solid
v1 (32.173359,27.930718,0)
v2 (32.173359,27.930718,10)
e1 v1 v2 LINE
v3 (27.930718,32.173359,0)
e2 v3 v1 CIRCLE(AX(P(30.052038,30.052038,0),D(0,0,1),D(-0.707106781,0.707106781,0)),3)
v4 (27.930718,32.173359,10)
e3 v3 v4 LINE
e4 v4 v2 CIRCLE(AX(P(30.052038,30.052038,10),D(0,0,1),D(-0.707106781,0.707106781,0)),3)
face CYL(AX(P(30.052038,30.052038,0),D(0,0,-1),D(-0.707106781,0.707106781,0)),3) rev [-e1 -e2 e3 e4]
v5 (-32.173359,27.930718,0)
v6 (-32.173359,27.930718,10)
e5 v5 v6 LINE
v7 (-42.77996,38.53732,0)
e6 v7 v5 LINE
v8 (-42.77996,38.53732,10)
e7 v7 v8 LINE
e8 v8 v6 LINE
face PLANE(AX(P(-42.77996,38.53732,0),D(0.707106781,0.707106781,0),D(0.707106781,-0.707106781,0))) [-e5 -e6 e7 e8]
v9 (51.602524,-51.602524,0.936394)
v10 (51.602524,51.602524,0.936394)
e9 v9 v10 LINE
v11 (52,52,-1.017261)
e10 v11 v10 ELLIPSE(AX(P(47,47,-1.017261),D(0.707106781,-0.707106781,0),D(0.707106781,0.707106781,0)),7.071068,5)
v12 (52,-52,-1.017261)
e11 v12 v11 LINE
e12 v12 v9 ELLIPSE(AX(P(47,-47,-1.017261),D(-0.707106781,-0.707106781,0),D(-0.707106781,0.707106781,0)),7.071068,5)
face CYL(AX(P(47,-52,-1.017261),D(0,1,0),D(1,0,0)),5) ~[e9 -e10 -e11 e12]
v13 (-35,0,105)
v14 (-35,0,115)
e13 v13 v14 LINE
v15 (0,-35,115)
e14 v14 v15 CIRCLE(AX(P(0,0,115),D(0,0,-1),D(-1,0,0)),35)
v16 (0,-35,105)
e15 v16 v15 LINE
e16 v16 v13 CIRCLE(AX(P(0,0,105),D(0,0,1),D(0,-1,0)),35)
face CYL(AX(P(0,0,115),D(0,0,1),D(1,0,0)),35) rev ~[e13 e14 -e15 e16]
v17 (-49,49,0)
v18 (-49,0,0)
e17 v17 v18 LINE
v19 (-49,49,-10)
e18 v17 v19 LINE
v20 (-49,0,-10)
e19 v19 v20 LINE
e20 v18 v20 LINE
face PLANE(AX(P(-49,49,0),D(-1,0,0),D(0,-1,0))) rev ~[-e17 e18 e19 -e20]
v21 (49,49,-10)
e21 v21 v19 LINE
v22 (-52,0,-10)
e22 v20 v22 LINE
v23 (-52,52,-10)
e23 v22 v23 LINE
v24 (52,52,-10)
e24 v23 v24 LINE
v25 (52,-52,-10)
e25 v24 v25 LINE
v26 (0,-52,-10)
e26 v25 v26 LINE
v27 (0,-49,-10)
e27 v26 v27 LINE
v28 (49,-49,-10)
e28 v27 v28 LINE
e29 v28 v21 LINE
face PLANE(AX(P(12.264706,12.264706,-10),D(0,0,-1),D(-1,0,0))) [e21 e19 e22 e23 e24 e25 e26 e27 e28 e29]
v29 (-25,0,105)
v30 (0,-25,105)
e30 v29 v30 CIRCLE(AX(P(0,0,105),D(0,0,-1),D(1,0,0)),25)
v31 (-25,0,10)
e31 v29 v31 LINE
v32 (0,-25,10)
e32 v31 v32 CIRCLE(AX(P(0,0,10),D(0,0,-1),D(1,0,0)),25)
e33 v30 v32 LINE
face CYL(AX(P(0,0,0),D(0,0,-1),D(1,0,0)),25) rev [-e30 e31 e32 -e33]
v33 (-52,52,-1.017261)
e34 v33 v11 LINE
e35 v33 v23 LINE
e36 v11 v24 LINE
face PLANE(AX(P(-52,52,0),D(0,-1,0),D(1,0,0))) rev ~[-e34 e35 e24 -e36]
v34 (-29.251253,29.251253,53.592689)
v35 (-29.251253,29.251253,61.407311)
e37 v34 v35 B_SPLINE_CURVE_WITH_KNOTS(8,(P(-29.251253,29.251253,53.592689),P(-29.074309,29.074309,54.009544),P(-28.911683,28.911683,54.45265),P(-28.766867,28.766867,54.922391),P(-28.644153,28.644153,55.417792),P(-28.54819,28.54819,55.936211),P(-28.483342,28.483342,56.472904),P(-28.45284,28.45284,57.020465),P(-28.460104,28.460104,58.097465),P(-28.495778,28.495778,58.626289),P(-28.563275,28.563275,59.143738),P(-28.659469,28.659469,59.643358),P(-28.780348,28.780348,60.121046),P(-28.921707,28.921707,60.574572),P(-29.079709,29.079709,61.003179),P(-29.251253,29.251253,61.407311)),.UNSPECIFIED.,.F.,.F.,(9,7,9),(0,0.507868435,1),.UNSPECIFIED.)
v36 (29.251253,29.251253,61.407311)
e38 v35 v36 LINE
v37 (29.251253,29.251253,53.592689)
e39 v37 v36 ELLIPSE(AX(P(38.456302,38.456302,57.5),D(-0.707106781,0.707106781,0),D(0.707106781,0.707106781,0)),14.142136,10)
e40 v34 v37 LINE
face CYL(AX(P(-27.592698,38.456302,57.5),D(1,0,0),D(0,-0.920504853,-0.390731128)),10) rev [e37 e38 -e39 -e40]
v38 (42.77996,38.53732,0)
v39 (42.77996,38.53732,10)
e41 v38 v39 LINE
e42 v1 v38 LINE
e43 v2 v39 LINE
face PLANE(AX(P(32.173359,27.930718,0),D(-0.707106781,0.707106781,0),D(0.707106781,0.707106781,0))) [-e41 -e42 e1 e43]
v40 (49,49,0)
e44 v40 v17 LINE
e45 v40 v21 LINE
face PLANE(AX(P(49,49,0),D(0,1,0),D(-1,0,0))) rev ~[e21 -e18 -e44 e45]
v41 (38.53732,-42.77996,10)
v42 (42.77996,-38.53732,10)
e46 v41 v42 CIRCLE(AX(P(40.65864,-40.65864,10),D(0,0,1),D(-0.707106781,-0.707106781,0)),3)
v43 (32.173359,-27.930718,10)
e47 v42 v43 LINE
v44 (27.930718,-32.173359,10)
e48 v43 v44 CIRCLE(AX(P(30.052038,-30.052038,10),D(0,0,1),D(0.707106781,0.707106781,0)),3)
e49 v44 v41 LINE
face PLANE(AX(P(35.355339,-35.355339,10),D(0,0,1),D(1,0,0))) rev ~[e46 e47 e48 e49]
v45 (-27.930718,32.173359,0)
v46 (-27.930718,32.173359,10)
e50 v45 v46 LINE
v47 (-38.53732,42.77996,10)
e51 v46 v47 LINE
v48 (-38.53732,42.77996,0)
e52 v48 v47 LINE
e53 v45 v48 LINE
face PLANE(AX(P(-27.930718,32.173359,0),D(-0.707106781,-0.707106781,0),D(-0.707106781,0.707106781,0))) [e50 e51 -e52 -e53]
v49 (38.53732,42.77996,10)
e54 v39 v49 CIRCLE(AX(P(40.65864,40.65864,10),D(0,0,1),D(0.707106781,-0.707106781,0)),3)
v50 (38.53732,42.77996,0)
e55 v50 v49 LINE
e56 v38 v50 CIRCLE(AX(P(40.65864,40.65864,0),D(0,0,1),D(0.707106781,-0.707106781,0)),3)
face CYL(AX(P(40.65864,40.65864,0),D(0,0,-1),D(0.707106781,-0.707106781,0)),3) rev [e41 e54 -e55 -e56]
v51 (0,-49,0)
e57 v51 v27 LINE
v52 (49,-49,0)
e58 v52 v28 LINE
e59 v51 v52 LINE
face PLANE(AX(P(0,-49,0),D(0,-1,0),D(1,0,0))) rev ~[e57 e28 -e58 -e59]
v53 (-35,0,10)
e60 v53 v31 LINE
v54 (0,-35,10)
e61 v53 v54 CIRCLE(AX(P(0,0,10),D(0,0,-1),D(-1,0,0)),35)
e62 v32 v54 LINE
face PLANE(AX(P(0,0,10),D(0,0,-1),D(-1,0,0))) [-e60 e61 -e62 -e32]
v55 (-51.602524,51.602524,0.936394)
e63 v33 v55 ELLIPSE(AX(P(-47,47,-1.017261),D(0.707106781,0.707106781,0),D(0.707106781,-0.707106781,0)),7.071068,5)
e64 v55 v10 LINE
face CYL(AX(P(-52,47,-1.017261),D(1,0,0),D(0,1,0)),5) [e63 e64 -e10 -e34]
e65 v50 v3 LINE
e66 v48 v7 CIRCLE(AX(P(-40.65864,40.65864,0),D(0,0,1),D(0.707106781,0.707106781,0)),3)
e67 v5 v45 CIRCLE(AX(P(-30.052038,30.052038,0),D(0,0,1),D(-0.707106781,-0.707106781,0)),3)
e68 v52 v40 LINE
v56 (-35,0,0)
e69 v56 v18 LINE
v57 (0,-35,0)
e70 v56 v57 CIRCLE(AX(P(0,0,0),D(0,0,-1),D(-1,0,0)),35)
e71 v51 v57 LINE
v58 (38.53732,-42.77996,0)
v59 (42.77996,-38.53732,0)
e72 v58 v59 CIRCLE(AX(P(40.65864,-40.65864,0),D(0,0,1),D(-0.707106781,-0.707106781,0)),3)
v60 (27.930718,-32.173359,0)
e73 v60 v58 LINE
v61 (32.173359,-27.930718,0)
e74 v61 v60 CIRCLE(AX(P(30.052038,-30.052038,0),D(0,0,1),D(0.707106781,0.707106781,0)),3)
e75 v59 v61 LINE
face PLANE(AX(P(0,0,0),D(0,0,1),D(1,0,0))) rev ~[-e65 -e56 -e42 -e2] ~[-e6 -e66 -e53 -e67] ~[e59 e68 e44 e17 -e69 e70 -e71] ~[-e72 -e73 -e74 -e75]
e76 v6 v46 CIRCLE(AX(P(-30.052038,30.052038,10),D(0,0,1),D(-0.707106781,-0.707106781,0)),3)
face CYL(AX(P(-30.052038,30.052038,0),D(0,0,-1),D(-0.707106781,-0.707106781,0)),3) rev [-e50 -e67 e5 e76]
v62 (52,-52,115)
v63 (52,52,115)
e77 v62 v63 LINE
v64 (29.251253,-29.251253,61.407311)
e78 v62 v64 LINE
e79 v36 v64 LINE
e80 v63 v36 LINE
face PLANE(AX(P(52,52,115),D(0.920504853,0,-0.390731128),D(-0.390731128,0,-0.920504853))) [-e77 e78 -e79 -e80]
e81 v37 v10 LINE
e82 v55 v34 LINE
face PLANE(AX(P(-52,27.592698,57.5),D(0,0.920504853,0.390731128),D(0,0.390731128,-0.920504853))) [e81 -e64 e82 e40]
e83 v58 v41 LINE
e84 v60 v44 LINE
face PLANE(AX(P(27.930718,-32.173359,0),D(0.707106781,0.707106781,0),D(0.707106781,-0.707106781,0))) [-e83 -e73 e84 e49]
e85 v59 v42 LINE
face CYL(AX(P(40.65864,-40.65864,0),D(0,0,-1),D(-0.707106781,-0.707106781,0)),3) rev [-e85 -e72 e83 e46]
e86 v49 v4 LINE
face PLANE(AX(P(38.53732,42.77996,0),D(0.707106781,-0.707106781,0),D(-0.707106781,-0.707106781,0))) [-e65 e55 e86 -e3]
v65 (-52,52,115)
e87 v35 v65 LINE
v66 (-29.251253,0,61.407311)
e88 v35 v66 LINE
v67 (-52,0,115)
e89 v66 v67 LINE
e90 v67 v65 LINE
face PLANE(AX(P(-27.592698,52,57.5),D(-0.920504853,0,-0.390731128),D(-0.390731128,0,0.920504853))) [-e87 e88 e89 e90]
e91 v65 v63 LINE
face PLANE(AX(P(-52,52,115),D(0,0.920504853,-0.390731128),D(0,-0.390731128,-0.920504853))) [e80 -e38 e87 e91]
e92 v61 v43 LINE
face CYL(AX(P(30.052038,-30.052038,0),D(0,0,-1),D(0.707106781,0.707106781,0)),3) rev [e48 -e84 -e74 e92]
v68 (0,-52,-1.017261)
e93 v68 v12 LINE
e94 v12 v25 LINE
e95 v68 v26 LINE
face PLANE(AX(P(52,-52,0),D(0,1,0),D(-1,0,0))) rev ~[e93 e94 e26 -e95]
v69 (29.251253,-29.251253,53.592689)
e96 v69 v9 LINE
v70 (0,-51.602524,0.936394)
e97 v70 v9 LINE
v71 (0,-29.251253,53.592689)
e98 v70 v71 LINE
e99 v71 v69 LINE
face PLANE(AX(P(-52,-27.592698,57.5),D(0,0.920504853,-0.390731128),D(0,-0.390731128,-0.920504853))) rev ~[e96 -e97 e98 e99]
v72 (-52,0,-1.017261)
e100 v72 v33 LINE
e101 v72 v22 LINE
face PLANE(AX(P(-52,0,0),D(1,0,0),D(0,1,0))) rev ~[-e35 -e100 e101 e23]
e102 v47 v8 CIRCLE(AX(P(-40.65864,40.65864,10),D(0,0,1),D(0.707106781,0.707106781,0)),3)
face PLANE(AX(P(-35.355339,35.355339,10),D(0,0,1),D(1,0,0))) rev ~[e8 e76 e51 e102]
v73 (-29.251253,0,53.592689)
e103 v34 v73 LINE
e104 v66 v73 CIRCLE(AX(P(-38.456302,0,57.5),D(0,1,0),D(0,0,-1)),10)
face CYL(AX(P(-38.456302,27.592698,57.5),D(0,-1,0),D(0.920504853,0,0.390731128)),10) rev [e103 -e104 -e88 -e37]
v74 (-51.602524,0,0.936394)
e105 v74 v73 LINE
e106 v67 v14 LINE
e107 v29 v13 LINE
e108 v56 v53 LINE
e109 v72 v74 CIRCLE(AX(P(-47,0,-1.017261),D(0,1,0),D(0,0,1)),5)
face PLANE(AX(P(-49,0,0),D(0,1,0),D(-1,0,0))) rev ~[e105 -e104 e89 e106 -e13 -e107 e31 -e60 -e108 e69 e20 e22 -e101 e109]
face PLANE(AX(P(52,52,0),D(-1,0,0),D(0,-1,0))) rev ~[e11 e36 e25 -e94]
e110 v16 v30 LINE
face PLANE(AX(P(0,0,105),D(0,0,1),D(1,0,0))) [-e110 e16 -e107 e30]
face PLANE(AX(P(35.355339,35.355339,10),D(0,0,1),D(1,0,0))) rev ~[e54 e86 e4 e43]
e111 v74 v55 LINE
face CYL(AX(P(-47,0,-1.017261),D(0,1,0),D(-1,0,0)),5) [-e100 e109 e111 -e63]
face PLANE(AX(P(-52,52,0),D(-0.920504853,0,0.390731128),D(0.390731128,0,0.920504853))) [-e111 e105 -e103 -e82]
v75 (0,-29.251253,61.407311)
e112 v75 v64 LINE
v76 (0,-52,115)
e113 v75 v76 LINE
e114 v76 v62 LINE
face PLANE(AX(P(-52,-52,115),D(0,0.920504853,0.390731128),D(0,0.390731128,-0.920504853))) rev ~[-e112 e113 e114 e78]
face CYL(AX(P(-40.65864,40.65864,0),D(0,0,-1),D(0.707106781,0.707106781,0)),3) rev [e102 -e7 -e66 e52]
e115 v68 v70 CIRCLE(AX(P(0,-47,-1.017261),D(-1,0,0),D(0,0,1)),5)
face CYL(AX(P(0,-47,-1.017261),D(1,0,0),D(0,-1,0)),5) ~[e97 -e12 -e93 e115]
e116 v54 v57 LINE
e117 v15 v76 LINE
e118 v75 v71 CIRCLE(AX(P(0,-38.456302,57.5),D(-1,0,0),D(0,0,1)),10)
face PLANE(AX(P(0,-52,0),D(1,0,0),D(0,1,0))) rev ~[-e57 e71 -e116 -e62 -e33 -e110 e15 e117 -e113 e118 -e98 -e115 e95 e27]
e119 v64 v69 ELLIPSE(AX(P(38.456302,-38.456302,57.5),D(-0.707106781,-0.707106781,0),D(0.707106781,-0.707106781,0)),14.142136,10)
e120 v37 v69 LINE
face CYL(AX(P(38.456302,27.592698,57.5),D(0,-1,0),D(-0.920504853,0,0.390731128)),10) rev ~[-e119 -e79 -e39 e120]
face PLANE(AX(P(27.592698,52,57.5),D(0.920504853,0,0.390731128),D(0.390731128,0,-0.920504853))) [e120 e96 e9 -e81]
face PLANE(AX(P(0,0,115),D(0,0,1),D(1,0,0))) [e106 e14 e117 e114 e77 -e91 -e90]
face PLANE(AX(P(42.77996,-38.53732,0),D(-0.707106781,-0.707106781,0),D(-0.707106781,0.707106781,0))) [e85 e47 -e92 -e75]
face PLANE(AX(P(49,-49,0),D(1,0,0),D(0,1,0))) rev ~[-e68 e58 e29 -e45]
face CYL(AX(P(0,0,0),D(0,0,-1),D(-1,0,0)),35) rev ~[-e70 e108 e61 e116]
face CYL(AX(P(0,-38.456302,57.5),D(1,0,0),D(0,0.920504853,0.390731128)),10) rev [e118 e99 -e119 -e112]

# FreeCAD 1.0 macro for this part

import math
import FreeCAD as App
import Part
import Sketcher
from FreeCAD import Vector
Q = App.Units.Quantity


def edges_at(feature, points):
    """Names of the edges that pass closest to the given points."""
    edges = feature.Shape.Edges
    near = lambda p: min(range(len(edges)), key=lambda i: edges[i].distToShape(Part.Vertex(*p))[0])
    return sorted({f"Edge{near(p) + 1}" for p in points})

doc = App.newDocument("Part")
body = doc.addObject("PartDesign::Body", "Body")

sketch1 = doc.addObject("Sketcher::SketchObject", "Sketch")
body.addObject(sketch1)
sketch1.AttachmentSupport = (doc.XY_Plane, [""])
sketch1.MapMode = "FlatFace"
sketch1.addGeometry([
    Part.LineSegment(Vector(-52, 52, 0), Vector(-52, -52, 0)),
    Part.LineSegment(Vector(-52, -52, 0), Vector(52, -52, 0)),
    Part.LineSegment(Vector(52, -52, 0), Vector(52, 52, 0)),
    Part.LineSegment(Vector(52, 52, 0), Vector(-52, 52, 0)),
    Part.Circle(Vector(0, 0, 0), Vector(0, 0, 1), 25),
], False)
sketch1.addConstraint([
    Sketcher.Constraint("Coincident", 0, 2, 1, 1),
    Sketcher.Constraint("Coincident", 1, 2, 2, 1),
    Sketcher.Constraint("Coincident", 2, 2, 3, 1),
    Sketcher.Constraint("Coincident", 3, 2, 0, 1),
    Sketcher.Constraint("Vertical", 0),
    Sketcher.Constraint("Horizontal", 1),
    Sketcher.Constraint("Vertical", 2),
    Sketcher.Constraint("Horizontal", 3),
    Sketcher.Constraint("Coincident", 4, 3, -1, 1),
    Sketcher.Constraint("Symmetric", 0, 2, 2, 2, -1, 1),
    Sketcher.Constraint("Equal", 3, 0),
    Sketcher.Constraint("Diameter", 4, Q("50 mm")),
    Sketcher.Constraint("DistanceX", 1, 1, 1, 2, Q("104 mm")),
])
pad1 = doc.addObject("PartDesign::Pad", "Pad")
body.addObject(pad1)
pad1.Profile = sketch1
pad1.Length = 115

sketch2 = doc.addObject("Sketcher::SketchObject", "Sketch001")
body.addObject(sketch2)
sketch2.AttachmentSupport = (doc.YZ_Plane, [""])
sketch2.MapMode = "FlatFace"
sketch2.AttachmentOffset = App.Placement(Vector(0, 0, -52), App.Rotation())
sketch2.addGeometry([
    Part.LineSegment(Vector(52, 115, 0), Vector(52, 0, 0)),
    Part.LineSegment(Vector(52, 0, 0), Vector(28, 58, 0)),
    Part.LineSegment(Vector(28, 58, 0), Vector(52, 115, 0)),
    Part.LineSegment(Vector(-52, 0, 0), Vector(-52, 115, 0)),
    Part.LineSegment(Vector(-52, 115, 0), Vector(-28, 58, 0)),
    Part.LineSegment(Vector(-28, 58, 0), Vector(-52, 0, 0)),
], False)
sketch2.addConstraint([
    Sketcher.Constraint("Coincident", 0, 2, 1, 1),
    Sketcher.Constraint("Coincident", 1, 2, 2, 1),
    Sketcher.Constraint("Coincident", 2, 2, 0, 1),
    Sketcher.Constraint("Coincident", 3, 2, 4, 1),
    Sketcher.Constraint("Coincident", 4, 2, 5, 1),
    Sketcher.Constraint("Coincident", 5, 2, 3, 1),
    Sketcher.Constraint("Vertical", 0),
    Sketcher.Constraint("Vertical", 3),
    Sketcher.Constraint("Symmetric", 0, 2, 5, 2, -1, 1),
    Sketcher.Constraint("Symmetric", 1, 2, 4, 2, -2),
    Sketcher.Constraint("PointOnObject", 0, 2, -1),
    Sketcher.Constraint("Parallel", 1, 4),
    Sketcher.Constraint("Parallel", 2, 5),
    Sketcher.Constraint("DistanceY", 0, 2, 0, 1, Q("115 mm")),
    Sketcher.Constraint("Angle", 1, Q("113 deg")),
    Sketcher.Constraint("DistanceX", -1, 1, 0, 2, Q("52 mm")),
])
pocket1 = doc.addObject("PartDesign::Pocket", "Pocket")
body.addObject(pocket1)
pocket1.Profile = sketch2
pocket1.Length = 115
pocket1.Reversed = True

sketch3 = doc.addObject("Sketcher::SketchObject", "Sketch002")
body.addObject(sketch3)
sketch3.AttachmentSupport = (doc.XZ_Plane, [""])
sketch3.MapMode = "FlatFace"
sketch3.AttachmentOffset = App.Placement(Vector(0, 0, -52), App.Rotation())
sketch3.addGeometry([
    Part.LineSegment(Vector(-28, 58, 0), Vector(-52, 0, 0)),
    Part.LineSegment(Vector(-52, 0, 0), Vector(-52, 115, 0)),
    Part.LineSegment(Vector(-52, 115, 0), Vector(-28, 58, 0)),
    Part.LineSegment(Vector(28, 58, 0), Vector(52, 115, 0)),
    Part.LineSegment(Vector(52, 115, 0), Vector(52, 0, 0)),
    Part.LineSegment(Vector(52, 0, 0), Vector(28, 58, 0)),
], False)
sketch3.addConstraint([
    Sketcher.Constraint("Coincident", 0, 2, 1, 1),
    Sketcher.Constraint("Coincident", 1, 2, 2, 1),
    Sketcher.Constraint("Coincident", 2, 2, 0, 1),
    Sketcher.Constraint("Coincident", 3, 2, 4, 1),
    Sketcher.Constraint("Coincident", 4, 2, 5, 1),
    Sketcher.Constraint("Coincident", 5, 2, 3, 1),
    Sketcher.Constraint("Vertical", 1),
    Sketcher.Constraint("Vertical", 4),
    Sketcher.Constraint("Symmetric", 0, 2, 4, 2, -1, 1),
    Sketcher.Constraint("Symmetric", 2, 2, 5, 2, -2),
    Sketcher.Constraint("PointOnObject", 0, 2, -1),
    Sketcher.Constraint("Parallel", 0, 3),
    Sketcher.Constraint("Parallel", 2, 5),
    Sketcher.Constraint("DistanceY", 1, 1, 1, 2, Q("115 mm")),
    Sketcher.Constraint("Angle", 0, Q("-113 deg")),
    Sketcher.Constraint("DistanceX", 0, 2, -1, 1, Q("52 mm")),
])
pocket2 = doc.addObject("PartDesign::Pocket", "Pocket001")
body.addObject(pocket2)
pocket2.Profile = sketch3
pocket2.Length = 115
pocket2.Reversed = True

sketch4 = doc.addObject("Sketcher::SketchObject", "Sketch003")
body.addObject(sketch4)
sketch4.AttachmentSupport = (doc.XY_Plane, [""])
sketch4.MapMode = "FlatFace"
sketch4.addGeometry([
    Part.LineSegment(Vector(-96, 0, 0), Vector(0, 0, 0)),
    Part.LineSegment(Vector(0, 0, 0), Vector(0, -95, 0)),
    Part.ArcOfCircle(Part.Circle(Vector(-34, -33, 0), Vector(0, 0, 1), 71), math.radians(152), math.radians(298)),
], False)
sketch4.addConstraint([
    Sketcher.Constraint("Coincident", 0, 2, 1, 1),
    Sketcher.Constraint("Coincident", 1, 2, 2, 2),
    Sketcher.Constraint("Coincident", 2, 1, 0, 1),
    Sketcher.Constraint("Horizontal", 0),
    Sketcher.Constraint("Vertical", 1),
    Sketcher.Constraint("Coincident", 0, 2, -1, 1),
    Sketcher.Constraint("Radius", 2, Q("70.960059 mm")),
    Sketcher.Constraint("DistanceX", 0, 1, 0, 2, Q("96.389791 mm")),
    Sketcher.Constraint("DistanceY", 1, 2, 1, 1, Q("95.424686 mm")),
])
pocket3 = doc.addObject("PartDesign::Pocket", "Pocket002")
body.addObject(pocket3)
pocket3.Profile = sketch4
pocket3.Type = "ThroughAll"
pocket3.Reversed = True
doc.recompute()

fillet = doc.addObject("PartDesign::Fillet", "Fillet")
body.addObject(fillet)
fillet.Base = (pocket3, edges_at(pocket3, [
    (13.796, -27.593, 57.5),
    (0, 27.593, 57.5),
    (27.593, 0, 57.5),
    (-27.593, 13.796, 57.5),
]))
fillet.Radius = 10

sketch5 = doc.addObject("Sketcher::SketchObject", "Sketch004")
body.addObject(sketch5)
sketch5.AttachmentSupport = (doc.XY_Plane, [""])
sketch5.MapMode = "FlatFace"
sketch5.addGeometry(Part.Circle(Vector(0, 0, 0), Vector(0, 0, 1), 35), False)
sketch5.addConstraint([
    Sketcher.Constraint("Coincident", 0, 3, -1, 1),
    Sketcher.Constraint("Diameter", 0, Q("70 mm")),
])
pocket4 = doc.addObject("PartDesign::Pocket", "Pocket003")
body.addObject(pocket4)
pocket4.Profile = sketch5
pocket4.Length = 10
pocket4.Reversed = True

sketch6 = doc.addObject("Sketcher::SketchObject", "Sketch005")
body.addObject(sketch6)
sketch6.AttachmentSupport = (doc.XY_Plane, [""])
sketch6.MapMode = "FlatFace"
sketch6.AttachmentOffset = App.Placement(Vector(0, 0, 115), App.Rotation())
sketch6.addGeometry(Part.Circle(Vector(0, 0, 0), Vector(0, 0, 1), 35), False)
sketch6.addConstraint([
    Sketcher.Constraint("Coincident", 0, 3, -1, 1),
    Sketcher.Constraint("Diameter", 0, Q("70 mm")),
])
pocket5 = doc.addObject("PartDesign::Pocket", "Pocket004")
body.addObject(pocket5)
pocket5.Profile = sketch6
pocket5.Length = 10

sketch7 = doc.addObject("Sketcher::SketchObject", "Sketch006")
body.addObject(sketch7)
sketch7.AttachmentSupport = (doc.XY_Plane, [""])
sketch7.MapMode = "FlatFace"
sketch7.addGeometry([
    Part.LineSegment(Vector(-52, 0, 0), Vector(-52, 52, 0)),
    Part.LineSegment(Vector(-52, 52, 0), Vector(52, 52, 0)),
    Part.LineSegment(Vector(52, 52, 0), Vector(52, -52, 0)),
    Part.LineSegment(Vector(52, -52, 0), Vector(0, -52, 0)),
    Part.LineSegment(Vector(0, -52, 0), Vector(0, -49, 0)),
    Part.LineSegment(Vector(0, -49, 0), Vector(49, -49, 0)),
    Part.LineSegment(Vector(49, -49, 0), Vector(49, 49, 0)),
    Part.LineSegment(Vector(49, 49, 0), Vector(-49, 49, 0)),
    Part.LineSegment(Vector(-49, 49, 0), Vector(-49, 0, 0)),
    Part.LineSegment(Vector(-49, 0, 0), Vector(-52, 0, 0)),
], False)
sketch7.addConstraint([
    Sketcher.Constraint("Coincident", 0, 2, 1, 1),
    Sketcher.Constraint("Coincident", 1, 2, 2, 1),
    Sketcher.Constraint("Coincident", 2, 2, 3, 1),
    Sketcher.Constraint("Coincident", 3, 2, 4, 1),
    Sketcher.Constraint("Coincident", 4, 2, 5, 1),
    Sketcher.Constraint("Coincident", 5, 2, 6, 1),
    Sketcher.Constraint("Coincident", 6, 2, 7, 1),
    Sketcher.Constraint("Coincident", 7, 2, 8, 1),
    Sketcher.Constraint("Coincident", 8, 2, 9, 1),
    Sketcher.Constraint("Coincident", 9, 2, 0, 1),
    Sketcher.Constraint("Vertical", 0),
    Sketcher.Constraint("Horizontal", 1),
    Sketcher.Constraint("Vertical", 2),
    Sketcher.Constraint("Horizontal", 3),
    Sketcher.Constraint("Vertical", 4),
    Sketcher.Constraint("Horizontal", 5),
    Sketcher.Constraint("Vertical", 6),
    Sketcher.Constraint("Horizontal", 7),
    Sketcher.Constraint("Vertical", 8),
    Sketcher.Constraint("Horizontal", 9),
    Sketcher.Constraint("Symmetric", 0, 2, 2, 2, -1, 1),
    Sketcher.Constraint("Symmetric", 5, 2, 7, 2, -1, 1),
    Sketcher.Constraint("PointOnObject", 3, 2, -2),
    Sketcher.Constraint("PointOnObject", 8, 2, -1),
    Sketcher.Constraint("Equal", 3, 0),
    Sketcher.Constraint("Equal", 9, 4),
    Sketcher.Constraint("DistanceX", 1, 1, 1, 2, Q("104 mm")),
    Sketcher.Constraint("DistanceX", 5, 1, 5, 2, Q("49 mm")),
])
pad2 = doc.addObject("PartDesign::Pad", "Pad001")
body.addObject(pad2)
pad2.Profile = sketch7
pad2.Length = 10
pad2.Reversed = True
doc.recompute()

fillet2 = doc.addObject("PartDesign::Fillet", "Fillet001")
body.addObject(fillet2)
fillet2.Base = (pad2, edges_at(pad2, [
    (0, 52, 0),
    (52, 0, 0),
    (-52, 26, 0),
    (26, -52, 0),
]))
fillet2.Radius = 5

sketch8 = doc.addObject("Sketcher::SketchObject", "Sketch007")
body.addObject(sketch8)
sketch8.AttachmentSupport = (doc.XY_Plane, [""])
sketch8.MapMode = "FlatFace"
sketch8.addGeometry([
    Part.LineSegment(Vector(-38.5, 42.8, 0), Vector(-27.9, 32.2, 0)),
    Part.ArcOfCircle(Part.Circle(Vector(-30.1, 30.1, 0), Vector(0, 0, 1), 3), math.radians(-135), math.radians(45)),
    Part.LineSegment(Vector(-32.2, 27.9, 0), Vector(-42.8, 38.5, 0)),
    Part.ArcOfCircle(Part.Circle(Vector(-40.7, 40.7, 0), Vector(0, 0, 1), 3), math.radians(45), math.radians(225)),
    Part.LineSegment(Vector(42.8, 38.5, 0), Vector(32.2, 27.9, 0)),
    Part.ArcOfCircle(Part.Circle(Vector(30.1, 30.1, 0), Vector(0, 0, 1), 3), math.radians(135), math.radians(315)),
    Part.LineSegment(Vector(27.9, 32.2, 0), Vector(38.5, 42.8, 0)),
    Part.ArcOfCircle(Part.Circle(Vector(40.7, 40.7, 0), Vector(0, 0, 1), 3), math.radians(-45), math.radians(135)),
    Part.LineSegment(Vector(38.5, -42.8, 0), Vector(27.9, -32.2, 0)),
    Part.ArcOfCircle(Part.Circle(Vector(30.1, -30.1, 0), Vector(0, 0, 1), 3), math.radians(45), math.radians(225)),
    Part.LineSegment(Vector(32.2, -27.9, 0), Vector(42.8, -38.5, 0)),
    Part.ArcOfCircle(Part.Circle(Vector(40.7, -40.7, 0), Vector(0, 0, 1), 3), math.radians(-135), math.radians(45)),
], False)
sketch8.addConstraint([
    Sketcher.Constraint("Tangent", 0, 2, 1, 2),
    Sketcher.Constraint("Tangent", 1, 1, 2, 1),
    Sketcher.Constraint("Tangent", 2, 2, 3, 2),
    Sketcher.Constraint("Tangent", 3, 1, 0, 1),
    Sketcher.Constraint("Tangent", 4, 2, 5, 2),
    Sketcher.Constraint("Tangent", 5, 1, 6, 1),
    Sketcher.Constraint("Tangent", 6, 2, 7, 2),
    Sketcher.Constraint("Tangent", 7, 1, 4, 1),
    Sketcher.Constraint("Tangent", 8, 2, 9, 2),
    Sketcher.Constraint("Tangent", 9, 1, 10, 1),
    Sketcher.Constraint("Tangent", 10, 2, 11, 2),
    Sketcher.Constraint("Tangent", 11, 1, 8, 1),
    Sketcher.Constraint("Equal", 1, 3),
    Sketcher.Constraint("Equal", 3, 5),
    Sketcher.Constraint("Equal", 5, 7),
    Sketcher.Constraint("Equal", 7, 9),
    Sketcher.Constraint("Equal", 9, 11),
    Sketcher.Constraint("Symmetric", 1, 3, 9, 3, -1, 1),
    Sketcher.Constraint("Symmetric", 3, 3, 11, 3, -1, 1),
    Sketcher.Constraint("Symmetric", 1, 3, 5, 3, -2),
    Sketcher.Constraint("Symmetric", 3, 3, 7, 3, -2),
    Sketcher.Constraint("Perpendicular", 2, 4),
    Sketcher.Constraint("Radius", 1, Q("3 mm")),
    Sketcher.Constraint("Distance", 0, Q("15 mm")),
    Sketcher.Constraint("DistanceX", 1, 1, 7, 3, Q("72.831998 mm")),
    Sketcher.Constraint("DistanceY", -1, 1, 1, 3, Q("30.052038 mm")),
])
pocket6 = doc.addObject("PartDesign::Pocket", "Pocket005")
body.addObject(pocket6)
pocket6.Profile = sketch8
pocket6.Length = 10
pocket6.Reversed = True

doc.recompute()
